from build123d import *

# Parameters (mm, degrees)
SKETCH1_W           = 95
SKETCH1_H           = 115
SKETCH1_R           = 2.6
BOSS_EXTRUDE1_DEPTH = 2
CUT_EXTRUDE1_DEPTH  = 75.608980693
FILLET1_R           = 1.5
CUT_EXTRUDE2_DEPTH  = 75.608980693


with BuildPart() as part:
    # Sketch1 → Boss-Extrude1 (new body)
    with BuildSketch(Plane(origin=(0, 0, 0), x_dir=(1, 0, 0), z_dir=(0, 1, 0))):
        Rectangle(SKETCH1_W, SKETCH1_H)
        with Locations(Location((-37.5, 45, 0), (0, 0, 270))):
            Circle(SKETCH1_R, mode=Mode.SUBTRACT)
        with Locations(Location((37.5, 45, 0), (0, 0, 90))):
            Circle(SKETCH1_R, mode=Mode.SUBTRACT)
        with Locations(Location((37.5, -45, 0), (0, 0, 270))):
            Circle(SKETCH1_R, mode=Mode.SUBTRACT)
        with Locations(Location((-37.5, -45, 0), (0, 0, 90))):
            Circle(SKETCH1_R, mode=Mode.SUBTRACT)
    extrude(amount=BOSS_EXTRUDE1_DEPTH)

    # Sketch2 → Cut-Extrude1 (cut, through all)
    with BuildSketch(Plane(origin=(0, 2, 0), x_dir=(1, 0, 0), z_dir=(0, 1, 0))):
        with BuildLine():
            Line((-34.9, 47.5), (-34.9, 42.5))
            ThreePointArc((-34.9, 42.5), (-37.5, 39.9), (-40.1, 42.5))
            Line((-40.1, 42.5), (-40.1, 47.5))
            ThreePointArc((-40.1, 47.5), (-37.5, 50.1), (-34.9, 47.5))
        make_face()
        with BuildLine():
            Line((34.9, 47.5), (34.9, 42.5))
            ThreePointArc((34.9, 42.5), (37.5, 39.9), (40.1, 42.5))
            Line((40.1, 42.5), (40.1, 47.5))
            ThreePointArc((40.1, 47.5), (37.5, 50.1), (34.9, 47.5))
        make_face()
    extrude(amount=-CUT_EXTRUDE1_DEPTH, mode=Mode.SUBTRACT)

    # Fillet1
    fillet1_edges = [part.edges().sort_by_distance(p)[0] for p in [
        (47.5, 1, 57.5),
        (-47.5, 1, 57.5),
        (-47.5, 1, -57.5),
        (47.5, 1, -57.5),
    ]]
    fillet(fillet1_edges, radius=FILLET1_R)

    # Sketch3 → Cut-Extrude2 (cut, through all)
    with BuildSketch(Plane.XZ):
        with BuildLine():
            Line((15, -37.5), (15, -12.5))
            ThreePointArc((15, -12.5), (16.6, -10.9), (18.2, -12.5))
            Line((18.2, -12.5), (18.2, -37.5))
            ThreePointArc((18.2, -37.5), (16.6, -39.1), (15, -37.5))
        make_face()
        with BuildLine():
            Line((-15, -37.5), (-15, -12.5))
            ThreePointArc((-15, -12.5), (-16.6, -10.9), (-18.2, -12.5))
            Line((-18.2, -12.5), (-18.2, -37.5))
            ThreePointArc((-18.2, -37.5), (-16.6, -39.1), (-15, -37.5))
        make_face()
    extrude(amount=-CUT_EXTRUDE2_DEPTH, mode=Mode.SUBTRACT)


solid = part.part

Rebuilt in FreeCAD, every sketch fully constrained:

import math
import FreeCAD as App
import Part
import Sketcher
Q = App.Units.Quantity


def edges_at(feature, points):
    """Names of the edges that pass closest to the given points."""
    edges = feature.Shape.Edges
    near = lambda p: min(range(len(edges)), key=lambda i: edges[i].distToShape(Part.Vertex(*p))[0])
    return sorted({f"Edge{near(p) + 1}" for p in points})


def add_polygon(sketch, points):
    """Adds a closed chain of lines whose ends are joined by coincident constraints."""
    first, n = sketch.GeometryCount, len(points)
    for a, b in zip(points, points[1:] + points[:1]):
        sketch.addGeometry(Part.LineSegment(App.Vector(*a, 0), App.Vector(*b, 0)), False)
    for i in range(n):
        sketch.addConstraint(Sketcher.Constraint("Coincident", first + i, 2, first + (i + 1) % n, 1))

doc = App.newDocument("Part")
body = doc.addObject("PartDesign::Body", "Body")

# Sketch on XZ plane
sketch1 = body.newObject("Sketcher::SketchObject", "Sketch")
sketch1.AttachmentSupport = (doc.getObject("XZ_Plane"), [""])
sketch1.MapMode = "FlatFace"
add_polygon(sketch1, [(-47.5, -57.5), (-47.5, 57.5), (47.5, 57.5), (47.5, -57.5)])  # lines 0-3
sketch1.addGeometry(Part.Circle(App.Vector(-37.5, 45, 0), App.Vector(0, 0, 1), 2.6), False)  # 4
sketch1.addGeometry(Part.Circle(App.Vector(37.5, 45, 0), App.Vector(0, 0, 1), 2.6), False)  # 5
sketch1.addGeometry(Part.Circle(App.Vector(-37.5, -45, 0), App.Vector(0, 0, 1), 2.6), False)  # 6
sketch1.addGeometry(Part.Circle(App.Vector(37.5, -45, 0), App.Vector(0, 0, 1), 2.6), False)  # 7
sketch1.addConstraint([
    Sketcher.Constraint("Vertical", 0),
    Sketcher.Constraint("Horizontal", 1),
    Sketcher.Constraint("Vertical", 2),
    Sketcher.Constraint("Horizontal", 3),
    Sketcher.Constraint("Equal", 4, 5),
    Sketcher.Constraint("Equal", 5, 6),
    Sketcher.Constraint("Equal", 6, 7),
    Sketcher.Constraint("Symmetric", 5, 3, 6, 3, -1, 1),
    Sketcher.Constraint("Symmetric", 4, 3, 7, 3, -1, 1),
    Sketcher.Constraint("Symmetric", 0, 2, 2, 2, -1, 1),
    Sketcher.Constraint("Symmetric", 4, 3, 5, 3, -2),
    Sketcher.Constraint("Diameter", 4, Q("5.2 mm")),
    Sketcher.Constraint("DistanceX", 1, 1, 1, 2, Q("95 mm")),
    Sketcher.Constraint("DistanceY", 0, 1, 0, 2, Q("115 mm")),
    Sketcher.Constraint("DistanceY", -1, 1, 4, 3, Q("45 mm")),
    Sketcher.Constraint("DistanceX", 4, 3, 5, 3, Q("75 mm")),
])
pad1 = body.newObject("PartDesign::Pad", "Pad")
pad1.Profile = sketch1
pad1.Length = 2
pad1.Reversed = True

# Sketch on XZ plane
sketch2 = body.newObject("Sketcher::SketchObject", "Sketch001")
sketch2.AttachmentSupport = (doc.getObject("XZ_Plane"), [""])
sketch2.MapMode = "FlatFace"
sketch2.AttachmentOffset = App.Placement(App.Vector(0, 0, -2), App.Rotation())
sketch2.addGeometry([
    Part.LineSegment(App.Vector(-34.9, -42.5, 0), App.Vector(-34.9, -47.5, 0)),  # 0
    Part.ArcOfCircle(Part.Circle(App.Vector(-37.5, -47.5, 0), App.Vector(0, 0, 1), 2.6), math.radians(180), math.radians(360)),  # 1
    Part.LineSegment(App.Vector(-40.1, -47.5, 0), App.Vector(-40.1, -42.5, 0)),  # 2
    Part.ArcOfCircle(Part.Circle(App.Vector(-37.5, -42.5, 0), App.Vector(0, 0, 1), 2.6), math.radians(0), math.radians(180)),  # 3
    Part.LineSegment(App.Vector(34.9, -47.5, 0), App.Vector(34.9, -42.5, 0)),  # 4
    Part.ArcOfCircle(Part.Circle(App.Vector(37.5, -42.5, 0), App.Vector(0, 0, 1), 2.6), math.radians(0), math.radians(180)),  # 5
    Part.LineSegment(App.Vector(40.1, -42.5, 0), App.Vector(40.1, -47.5, 0)),  # 6
    Part.ArcOfCircle(Part.Circle(App.Vector(37.5, -47.5, 0), App.Vector(0, 0, 1), 2.6), math.radians(180), math.radians(360)),  # 7
], False)
sketch2.addConstraint([
    Sketcher.Constraint("Tangent", 0, 2, 1, 2),
    Sketcher.Constraint("Tangent", 1, 1, 2, 1),
    Sketcher.Constraint("Tangent", 2, 2, 3, 2),
    Sketcher.Constraint("Tangent", 3, 1, 0, 1),
    Sketcher.Constraint("Tangent", 4, 2, 5, 2),
    Sketcher.Constraint("Tangent", 5, 1, 6, 1),
    Sketcher.Constraint("Tangent", 6, 2, 7, 2),
    Sketcher.Constraint("Tangent", 7, 1, 4, 1),
    Sketcher.Constraint("Vertical", 0),
    Sketcher.Constraint("Vertical", 2),
    Sketcher.Constraint("Vertical", 4),
    Sketcher.Constraint("Vertical", 6),
    Sketcher.Constraint("Equal", 3, 5),
    Sketcher.Constraint("Symmetric", 3, 3, 5, 3, -2),
    Sketcher.Constraint("Horizontal", 1, 3, 7, 3),
    Sketcher.Constraint("Radius", 1, Q("2.6 mm")),
    Sketcher.Constraint("DistanceY", 0, 2, 0, 1, Q("5 mm")),
    Sketcher.Constraint("DistanceX", 3, 3, 5, 3, Q("75 mm")),
    Sketcher.Constraint("DistanceY", 1, 3, -1, 1, Q("47.5 mm")),
])
pocket1 = body.newObject("PartDesign::Pocket", "Pocket")
pocket1.Profile = sketch2
pocket1.Type = "ThroughAll"
pocket1.Reversed = True
doc.recompute()

fillet = body.newObject("PartDesign::Fillet", "Fillet")
fillet.Base = (pocket1, edges_at(pocket1, [
    (47.5, 1, 57.5),
    (-47.5, 1, 57.5),
    (-47.5, 1, -57.5),
    (47.5, 1, -57.5),
]))
fillet.Radius = 1.5

# Sketch on XZ plane
sketch3 = body.newObject("Sketcher::SketchObject", "Sketch002")
sketch3.AttachmentSupport = (doc.getObject("XZ_Plane"), [""])
sketch3.MapMode = "FlatFace"
sketch3.addGeometry([
    Part.LineSegment(App.Vector(15, -12.5, 0), App.Vector(15, -37.5, 0)),  # 0
    Part.ArcOfCircle(Part.Circle(App.Vector(16.6, -37.5, 0), App.Vector(0, 0, 1), 1.6), math.radians(180), math.radians(360)),  # 1
    Part.LineSegment(App.Vector(18.2, -37.5, 0), App.Vector(18.2, -12.5, 0)),  # 2
    Part.ArcOfCircle(Part.Circle(App.Vector(16.6, -12.5, 0), App.Vector(0, 0, 1), 1.6), math.radians(0), math.radians(180)),  # 3
    Part.LineSegment(App.Vector(-15, -37.5, 0), App.Vector(-15, -12.5, 0)),  # 4
    Part.ArcOfCircle(Part.Circle(App.Vector(-16.6, -12.5, 0), App.Vector(0, 0, 1), 1.6), math.radians(0), math.radians(180)),  # 5
    Part.LineSegment(App.Vector(-18.2, -12.5, 0), App.Vector(-18.2, -37.5, 0)),  # 6
    Part.ArcOfCircle(Part.Circle(App.Vector(-16.6, -37.5, 0), App.Vector(0, 0, 1), 1.6), math.radians(180), math.radians(360)),  # 7
], False)
sketch3.addConstraint([
    Sketcher.Constraint("Tangent", 0, 2, 1, 1),
    Sketcher.Constraint("Tangent", 1, 2, 2, 1),
    Sketcher.Constraint("Tangent", 2, 2, 3, 1),
    Sketcher.Constraint("Tangent", 3, 2, 0, 1),
    Sketcher.Constraint("Tangent", 4, 2, 5, 1),
    Sketcher.Constraint("Tangent", 5, 2, 6, 1),
    Sketcher.Constraint("Tangent", 6, 2, 7, 1),
    Sketcher.Constraint("Tangent", 7, 2, 4, 1),
    Sketcher.Constraint("Vertical", 0),
    Sketcher.Constraint("Vertical", 2),
    Sketcher.Constraint("Vertical", 4),
    Sketcher.Constraint("Vertical", 6),
    Sketcher.Constraint("Equal", 3, 5),
    Sketcher.Constraint("Symmetric", 3, 3, 5, 3, -2),
    Sketcher.Constraint("Horizontal", 1, 3, 7, 3),
    Sketcher.Constraint("Radius", 1, Q("1.6 mm")),
    Sketcher.Constraint("DistanceY", 0, 2, 0, 1, Q("25 mm")),
    Sketcher.Constraint("DistanceX", -1, 1, 0, 2, Q("15 mm")),
    Sketcher.Constraint("DistanceY", 1, 3, -1, 1, Q("37.5 mm")),
])
pocket2 = body.newObject("PartDesign::Pocket", "Pocket001")
pocket2.Profile = sketch3
pocket2.Type = "ThroughAll"

doc.recompute()
